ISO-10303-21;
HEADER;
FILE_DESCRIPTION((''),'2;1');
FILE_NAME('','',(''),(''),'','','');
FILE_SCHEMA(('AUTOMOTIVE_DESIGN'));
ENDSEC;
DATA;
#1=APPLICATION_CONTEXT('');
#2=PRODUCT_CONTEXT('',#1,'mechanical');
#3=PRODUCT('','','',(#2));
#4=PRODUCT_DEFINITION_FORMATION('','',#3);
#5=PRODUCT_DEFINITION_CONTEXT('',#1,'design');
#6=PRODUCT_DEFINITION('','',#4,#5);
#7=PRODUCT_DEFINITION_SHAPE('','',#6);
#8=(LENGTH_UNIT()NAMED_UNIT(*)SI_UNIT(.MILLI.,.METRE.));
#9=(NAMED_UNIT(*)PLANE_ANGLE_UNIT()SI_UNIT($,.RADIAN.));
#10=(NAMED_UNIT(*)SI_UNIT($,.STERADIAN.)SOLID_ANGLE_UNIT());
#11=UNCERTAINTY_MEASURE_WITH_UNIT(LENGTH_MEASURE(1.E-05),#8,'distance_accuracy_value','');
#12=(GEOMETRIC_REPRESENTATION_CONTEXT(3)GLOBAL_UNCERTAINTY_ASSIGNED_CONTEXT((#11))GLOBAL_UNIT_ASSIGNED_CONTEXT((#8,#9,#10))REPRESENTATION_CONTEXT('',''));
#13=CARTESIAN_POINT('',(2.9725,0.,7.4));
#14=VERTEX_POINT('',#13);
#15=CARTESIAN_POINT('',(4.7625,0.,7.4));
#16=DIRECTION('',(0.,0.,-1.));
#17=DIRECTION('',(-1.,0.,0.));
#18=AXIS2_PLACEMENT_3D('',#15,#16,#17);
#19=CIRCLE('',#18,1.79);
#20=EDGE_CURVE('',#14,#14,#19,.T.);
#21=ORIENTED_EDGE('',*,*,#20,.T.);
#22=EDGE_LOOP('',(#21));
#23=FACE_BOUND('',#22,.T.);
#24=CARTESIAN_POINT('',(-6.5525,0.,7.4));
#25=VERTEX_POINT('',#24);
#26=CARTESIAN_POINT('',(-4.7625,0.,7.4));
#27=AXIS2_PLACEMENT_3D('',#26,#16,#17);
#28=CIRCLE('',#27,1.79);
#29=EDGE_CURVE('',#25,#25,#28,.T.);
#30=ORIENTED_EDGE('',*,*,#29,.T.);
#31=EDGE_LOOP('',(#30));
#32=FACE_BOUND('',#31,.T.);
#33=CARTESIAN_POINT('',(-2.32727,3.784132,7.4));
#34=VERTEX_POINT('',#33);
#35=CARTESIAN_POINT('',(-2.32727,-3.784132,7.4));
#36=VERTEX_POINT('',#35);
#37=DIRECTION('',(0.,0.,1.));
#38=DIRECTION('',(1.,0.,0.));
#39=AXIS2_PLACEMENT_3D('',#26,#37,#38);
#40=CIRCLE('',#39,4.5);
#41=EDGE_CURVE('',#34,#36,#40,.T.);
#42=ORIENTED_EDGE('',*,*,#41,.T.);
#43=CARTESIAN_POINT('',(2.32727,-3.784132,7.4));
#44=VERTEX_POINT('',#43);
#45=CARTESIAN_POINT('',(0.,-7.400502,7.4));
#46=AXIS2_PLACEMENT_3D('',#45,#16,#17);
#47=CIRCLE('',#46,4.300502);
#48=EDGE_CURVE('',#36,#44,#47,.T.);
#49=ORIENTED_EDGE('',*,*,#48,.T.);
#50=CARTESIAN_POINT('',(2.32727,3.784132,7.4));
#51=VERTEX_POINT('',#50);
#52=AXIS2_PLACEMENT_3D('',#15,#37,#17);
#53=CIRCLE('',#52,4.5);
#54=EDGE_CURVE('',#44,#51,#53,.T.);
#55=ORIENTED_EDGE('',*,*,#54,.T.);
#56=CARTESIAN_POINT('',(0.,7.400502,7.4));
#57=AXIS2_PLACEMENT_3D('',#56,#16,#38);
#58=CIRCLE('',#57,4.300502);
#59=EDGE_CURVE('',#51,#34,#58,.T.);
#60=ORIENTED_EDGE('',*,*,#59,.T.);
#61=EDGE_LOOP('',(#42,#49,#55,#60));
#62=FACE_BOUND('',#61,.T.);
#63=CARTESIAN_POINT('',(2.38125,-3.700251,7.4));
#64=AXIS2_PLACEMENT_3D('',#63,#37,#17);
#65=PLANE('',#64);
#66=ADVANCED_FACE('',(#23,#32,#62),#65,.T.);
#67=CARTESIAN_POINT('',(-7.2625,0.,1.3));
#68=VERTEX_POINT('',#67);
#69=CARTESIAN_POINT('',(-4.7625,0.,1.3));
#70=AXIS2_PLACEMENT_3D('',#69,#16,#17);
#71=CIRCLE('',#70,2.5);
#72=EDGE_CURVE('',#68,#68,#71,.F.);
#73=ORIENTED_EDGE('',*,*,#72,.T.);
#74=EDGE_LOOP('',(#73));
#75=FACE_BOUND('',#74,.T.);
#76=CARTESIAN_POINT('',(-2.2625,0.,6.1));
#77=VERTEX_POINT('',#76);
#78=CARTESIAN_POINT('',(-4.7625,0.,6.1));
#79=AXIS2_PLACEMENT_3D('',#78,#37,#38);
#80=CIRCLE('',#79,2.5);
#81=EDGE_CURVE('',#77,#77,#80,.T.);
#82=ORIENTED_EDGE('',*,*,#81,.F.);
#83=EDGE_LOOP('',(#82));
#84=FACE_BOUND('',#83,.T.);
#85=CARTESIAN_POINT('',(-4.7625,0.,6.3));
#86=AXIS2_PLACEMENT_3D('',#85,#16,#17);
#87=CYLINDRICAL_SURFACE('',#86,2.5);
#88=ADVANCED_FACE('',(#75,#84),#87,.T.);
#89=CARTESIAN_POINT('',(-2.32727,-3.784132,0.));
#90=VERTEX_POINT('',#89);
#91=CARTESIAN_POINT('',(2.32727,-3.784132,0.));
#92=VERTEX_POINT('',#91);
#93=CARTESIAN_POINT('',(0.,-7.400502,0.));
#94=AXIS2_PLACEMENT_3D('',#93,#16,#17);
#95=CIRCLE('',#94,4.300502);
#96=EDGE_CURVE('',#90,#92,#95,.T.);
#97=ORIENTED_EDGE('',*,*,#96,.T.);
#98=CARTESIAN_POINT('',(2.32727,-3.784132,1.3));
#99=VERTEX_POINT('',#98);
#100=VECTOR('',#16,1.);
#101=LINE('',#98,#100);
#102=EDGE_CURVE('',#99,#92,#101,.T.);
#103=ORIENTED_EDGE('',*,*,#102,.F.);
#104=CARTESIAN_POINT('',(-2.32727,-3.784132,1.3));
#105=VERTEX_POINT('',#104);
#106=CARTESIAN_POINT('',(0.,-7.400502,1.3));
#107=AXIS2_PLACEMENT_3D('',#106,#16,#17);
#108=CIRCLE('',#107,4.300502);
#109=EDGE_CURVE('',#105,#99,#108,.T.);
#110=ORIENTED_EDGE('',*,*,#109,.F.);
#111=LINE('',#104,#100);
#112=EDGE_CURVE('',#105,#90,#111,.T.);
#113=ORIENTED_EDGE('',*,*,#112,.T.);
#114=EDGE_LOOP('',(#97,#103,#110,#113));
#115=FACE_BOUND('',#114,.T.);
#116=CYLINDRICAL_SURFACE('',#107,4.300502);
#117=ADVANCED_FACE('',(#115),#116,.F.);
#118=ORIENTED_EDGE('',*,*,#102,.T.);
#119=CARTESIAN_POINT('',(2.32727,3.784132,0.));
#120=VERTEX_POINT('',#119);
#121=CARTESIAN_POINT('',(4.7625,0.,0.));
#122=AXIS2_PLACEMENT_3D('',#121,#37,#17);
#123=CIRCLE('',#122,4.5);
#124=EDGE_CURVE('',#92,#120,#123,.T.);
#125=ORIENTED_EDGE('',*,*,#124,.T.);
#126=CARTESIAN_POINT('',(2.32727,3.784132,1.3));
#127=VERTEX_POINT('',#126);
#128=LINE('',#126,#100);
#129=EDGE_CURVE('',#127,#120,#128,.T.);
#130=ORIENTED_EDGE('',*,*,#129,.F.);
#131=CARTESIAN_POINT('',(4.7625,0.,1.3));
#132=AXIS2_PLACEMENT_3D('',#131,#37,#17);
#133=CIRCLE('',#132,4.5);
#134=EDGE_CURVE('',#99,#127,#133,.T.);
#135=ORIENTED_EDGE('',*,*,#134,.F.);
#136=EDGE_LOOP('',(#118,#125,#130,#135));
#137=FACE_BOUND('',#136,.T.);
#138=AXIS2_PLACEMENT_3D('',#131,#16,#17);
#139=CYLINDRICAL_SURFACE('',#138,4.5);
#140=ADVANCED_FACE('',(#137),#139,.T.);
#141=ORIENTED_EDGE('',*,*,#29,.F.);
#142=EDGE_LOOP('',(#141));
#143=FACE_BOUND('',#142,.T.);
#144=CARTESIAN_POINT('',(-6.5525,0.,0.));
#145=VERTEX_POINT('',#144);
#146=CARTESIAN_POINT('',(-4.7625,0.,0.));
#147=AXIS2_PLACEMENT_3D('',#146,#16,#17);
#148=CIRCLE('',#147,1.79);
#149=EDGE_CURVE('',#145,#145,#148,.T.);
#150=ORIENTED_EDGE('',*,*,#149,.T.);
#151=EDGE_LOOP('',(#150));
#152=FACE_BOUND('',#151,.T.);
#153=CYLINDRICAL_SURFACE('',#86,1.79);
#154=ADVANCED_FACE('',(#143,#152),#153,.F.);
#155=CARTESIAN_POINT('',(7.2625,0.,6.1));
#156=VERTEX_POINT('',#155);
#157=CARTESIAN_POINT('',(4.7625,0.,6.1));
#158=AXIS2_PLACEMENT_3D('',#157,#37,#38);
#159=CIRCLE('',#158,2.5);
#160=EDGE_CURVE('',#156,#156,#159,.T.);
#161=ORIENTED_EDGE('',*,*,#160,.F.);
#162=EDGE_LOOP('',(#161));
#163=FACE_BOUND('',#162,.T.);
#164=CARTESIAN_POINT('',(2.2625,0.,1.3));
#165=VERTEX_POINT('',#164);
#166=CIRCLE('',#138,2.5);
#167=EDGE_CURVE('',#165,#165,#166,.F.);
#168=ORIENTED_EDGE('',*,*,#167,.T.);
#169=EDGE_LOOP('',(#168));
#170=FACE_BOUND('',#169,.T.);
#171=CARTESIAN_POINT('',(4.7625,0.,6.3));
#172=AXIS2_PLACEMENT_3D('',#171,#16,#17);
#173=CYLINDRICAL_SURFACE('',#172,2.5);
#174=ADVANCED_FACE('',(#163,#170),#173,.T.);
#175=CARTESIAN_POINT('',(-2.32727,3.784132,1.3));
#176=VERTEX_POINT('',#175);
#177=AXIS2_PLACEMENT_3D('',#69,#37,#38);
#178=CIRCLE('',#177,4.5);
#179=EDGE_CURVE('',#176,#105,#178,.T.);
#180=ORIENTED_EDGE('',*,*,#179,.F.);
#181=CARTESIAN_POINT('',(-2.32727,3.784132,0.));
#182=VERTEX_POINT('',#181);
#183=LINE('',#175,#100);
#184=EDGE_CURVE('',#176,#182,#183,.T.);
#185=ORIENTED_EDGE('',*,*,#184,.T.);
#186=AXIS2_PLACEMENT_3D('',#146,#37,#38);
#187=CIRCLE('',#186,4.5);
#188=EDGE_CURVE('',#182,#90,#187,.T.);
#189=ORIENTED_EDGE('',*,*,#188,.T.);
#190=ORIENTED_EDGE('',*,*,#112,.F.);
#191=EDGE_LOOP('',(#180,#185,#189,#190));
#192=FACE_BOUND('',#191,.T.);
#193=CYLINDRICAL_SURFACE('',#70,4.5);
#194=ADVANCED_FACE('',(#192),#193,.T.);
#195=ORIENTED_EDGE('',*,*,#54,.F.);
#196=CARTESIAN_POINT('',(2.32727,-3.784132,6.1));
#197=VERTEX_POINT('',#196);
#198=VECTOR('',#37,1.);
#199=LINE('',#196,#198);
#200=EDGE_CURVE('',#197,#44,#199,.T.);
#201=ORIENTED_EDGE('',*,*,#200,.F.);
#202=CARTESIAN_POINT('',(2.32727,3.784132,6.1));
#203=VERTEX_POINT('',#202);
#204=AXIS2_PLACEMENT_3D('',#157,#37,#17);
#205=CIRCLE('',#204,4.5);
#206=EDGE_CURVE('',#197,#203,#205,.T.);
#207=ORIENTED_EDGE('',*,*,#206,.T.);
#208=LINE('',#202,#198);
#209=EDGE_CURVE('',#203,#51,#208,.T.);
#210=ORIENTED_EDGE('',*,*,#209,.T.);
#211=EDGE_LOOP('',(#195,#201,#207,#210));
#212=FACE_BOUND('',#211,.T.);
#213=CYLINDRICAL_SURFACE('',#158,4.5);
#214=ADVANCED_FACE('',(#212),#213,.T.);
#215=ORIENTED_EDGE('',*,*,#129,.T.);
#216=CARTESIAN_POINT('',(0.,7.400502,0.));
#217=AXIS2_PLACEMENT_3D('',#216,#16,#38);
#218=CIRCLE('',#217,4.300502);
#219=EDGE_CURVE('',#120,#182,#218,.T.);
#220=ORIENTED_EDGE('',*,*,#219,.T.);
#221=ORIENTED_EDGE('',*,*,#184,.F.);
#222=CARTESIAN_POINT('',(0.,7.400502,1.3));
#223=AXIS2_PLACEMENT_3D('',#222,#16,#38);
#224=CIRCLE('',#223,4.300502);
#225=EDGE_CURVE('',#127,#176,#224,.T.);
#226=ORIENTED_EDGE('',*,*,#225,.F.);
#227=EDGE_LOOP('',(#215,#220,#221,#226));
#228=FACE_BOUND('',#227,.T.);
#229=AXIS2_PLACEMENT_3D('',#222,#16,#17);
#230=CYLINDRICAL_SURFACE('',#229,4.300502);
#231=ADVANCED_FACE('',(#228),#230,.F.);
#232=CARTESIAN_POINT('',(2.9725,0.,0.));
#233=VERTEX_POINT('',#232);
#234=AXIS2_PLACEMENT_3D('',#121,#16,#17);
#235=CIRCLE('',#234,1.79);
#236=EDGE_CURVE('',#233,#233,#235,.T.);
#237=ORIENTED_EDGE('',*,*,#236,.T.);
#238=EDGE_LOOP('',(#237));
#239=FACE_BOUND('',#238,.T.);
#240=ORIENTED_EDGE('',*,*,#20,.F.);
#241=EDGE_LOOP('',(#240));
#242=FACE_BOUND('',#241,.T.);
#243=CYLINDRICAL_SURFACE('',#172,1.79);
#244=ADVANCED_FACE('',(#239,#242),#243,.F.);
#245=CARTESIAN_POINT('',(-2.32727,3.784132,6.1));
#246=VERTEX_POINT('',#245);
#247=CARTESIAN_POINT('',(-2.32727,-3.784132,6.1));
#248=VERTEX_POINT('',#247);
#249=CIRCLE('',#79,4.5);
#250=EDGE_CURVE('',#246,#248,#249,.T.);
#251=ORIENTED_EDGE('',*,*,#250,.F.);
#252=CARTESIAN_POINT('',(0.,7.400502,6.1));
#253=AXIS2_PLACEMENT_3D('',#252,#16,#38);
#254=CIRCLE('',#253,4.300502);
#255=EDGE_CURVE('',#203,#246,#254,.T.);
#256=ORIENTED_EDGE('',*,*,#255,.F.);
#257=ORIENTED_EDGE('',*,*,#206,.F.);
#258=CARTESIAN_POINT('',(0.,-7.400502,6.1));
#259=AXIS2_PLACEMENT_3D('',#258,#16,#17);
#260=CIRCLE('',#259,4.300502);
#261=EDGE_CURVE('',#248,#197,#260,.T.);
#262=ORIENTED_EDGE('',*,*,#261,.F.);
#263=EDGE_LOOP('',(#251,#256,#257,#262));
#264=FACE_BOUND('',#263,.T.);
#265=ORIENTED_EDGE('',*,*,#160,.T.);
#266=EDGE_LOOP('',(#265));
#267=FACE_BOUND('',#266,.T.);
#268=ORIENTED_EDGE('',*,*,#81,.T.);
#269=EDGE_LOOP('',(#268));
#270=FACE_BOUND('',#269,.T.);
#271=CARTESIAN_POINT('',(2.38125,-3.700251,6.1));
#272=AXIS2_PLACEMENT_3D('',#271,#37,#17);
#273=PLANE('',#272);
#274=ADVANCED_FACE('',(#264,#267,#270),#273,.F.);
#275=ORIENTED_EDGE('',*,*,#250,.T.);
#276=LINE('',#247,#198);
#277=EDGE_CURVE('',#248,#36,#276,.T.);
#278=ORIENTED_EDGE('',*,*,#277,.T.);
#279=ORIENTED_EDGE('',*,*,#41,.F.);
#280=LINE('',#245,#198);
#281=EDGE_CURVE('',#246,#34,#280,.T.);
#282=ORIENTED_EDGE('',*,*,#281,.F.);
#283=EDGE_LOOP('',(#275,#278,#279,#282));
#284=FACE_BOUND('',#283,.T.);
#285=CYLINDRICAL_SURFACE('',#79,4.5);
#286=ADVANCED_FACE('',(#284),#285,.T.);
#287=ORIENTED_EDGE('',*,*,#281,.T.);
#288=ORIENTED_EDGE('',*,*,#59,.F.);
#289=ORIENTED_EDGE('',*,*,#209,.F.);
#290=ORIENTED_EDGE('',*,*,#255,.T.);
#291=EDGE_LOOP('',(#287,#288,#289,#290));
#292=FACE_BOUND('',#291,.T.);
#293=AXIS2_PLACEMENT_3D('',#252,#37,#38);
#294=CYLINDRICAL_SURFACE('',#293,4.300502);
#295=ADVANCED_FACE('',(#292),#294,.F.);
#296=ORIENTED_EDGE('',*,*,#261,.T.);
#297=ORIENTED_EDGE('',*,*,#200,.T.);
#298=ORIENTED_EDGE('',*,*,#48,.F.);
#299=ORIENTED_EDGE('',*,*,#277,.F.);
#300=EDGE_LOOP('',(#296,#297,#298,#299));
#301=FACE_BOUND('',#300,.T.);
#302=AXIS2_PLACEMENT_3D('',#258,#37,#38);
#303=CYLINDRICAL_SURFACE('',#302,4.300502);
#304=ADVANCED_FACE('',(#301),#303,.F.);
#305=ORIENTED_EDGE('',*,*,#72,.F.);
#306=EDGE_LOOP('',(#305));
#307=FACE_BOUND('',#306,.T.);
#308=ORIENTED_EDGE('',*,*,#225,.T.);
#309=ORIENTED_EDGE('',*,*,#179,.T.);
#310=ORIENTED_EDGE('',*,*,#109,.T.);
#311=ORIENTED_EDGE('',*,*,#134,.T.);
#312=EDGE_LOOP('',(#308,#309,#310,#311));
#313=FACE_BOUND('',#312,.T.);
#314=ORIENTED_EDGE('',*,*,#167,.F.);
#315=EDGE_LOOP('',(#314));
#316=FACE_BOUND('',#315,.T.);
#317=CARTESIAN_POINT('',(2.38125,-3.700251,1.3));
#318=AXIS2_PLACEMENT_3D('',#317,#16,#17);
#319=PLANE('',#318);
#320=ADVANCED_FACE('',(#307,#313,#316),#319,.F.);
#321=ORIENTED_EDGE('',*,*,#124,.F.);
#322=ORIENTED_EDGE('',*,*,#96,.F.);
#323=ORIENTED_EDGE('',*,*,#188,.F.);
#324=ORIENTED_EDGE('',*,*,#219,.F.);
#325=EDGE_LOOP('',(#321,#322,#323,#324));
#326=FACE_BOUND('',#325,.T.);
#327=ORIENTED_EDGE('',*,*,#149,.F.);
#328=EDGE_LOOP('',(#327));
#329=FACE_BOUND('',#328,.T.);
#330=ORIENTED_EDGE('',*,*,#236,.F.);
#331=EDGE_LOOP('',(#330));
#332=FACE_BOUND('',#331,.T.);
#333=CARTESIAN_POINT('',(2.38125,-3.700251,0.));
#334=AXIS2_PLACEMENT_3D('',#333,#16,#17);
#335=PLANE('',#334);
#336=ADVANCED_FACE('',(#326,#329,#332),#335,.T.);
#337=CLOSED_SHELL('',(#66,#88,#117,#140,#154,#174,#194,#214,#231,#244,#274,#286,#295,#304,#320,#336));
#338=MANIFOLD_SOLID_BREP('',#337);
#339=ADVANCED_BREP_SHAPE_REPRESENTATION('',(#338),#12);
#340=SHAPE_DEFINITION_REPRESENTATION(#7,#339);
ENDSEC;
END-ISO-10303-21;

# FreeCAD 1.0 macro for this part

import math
import FreeCAD as App
import Part
import Sketcher
from FreeCAD import Vector
Q = App.Units.Quantity

doc = App.newDocument("Part")
body = doc.addObject("PartDesign::Body", "Body")

sketch1 = body.newObject("Sketcher::SketchObject", "Sketch")
sketch1.AttachmentSupport = (doc.getObject("XY_Plane"), [""])
sketch1.MapMode = "FlatFace"
sketch1.addGeometry(Part.ArcOfCircle(Part.Circle(Vector(-4.7625, 0, 0), Vector(0, 0, 1), 4.5), math.radians(57.237203), math.radians(302.762797)), False)
sketch1.addGeometry(Part.ArcOfCircle(Part.Circle(Vector(0, -7.400502, 0), Vector(0, 0, 1), 4.300502), math.radians(57.237203), math.radians(122.762797)), False)
sketch1.addGeometry(Part.ArcOfCircle(Part.Circle(Vector(4.7625, 0, 0), Vector(0, 0, 1), 4.5), math.radians(-122.762797), math.radians(122.762797)), False)
sketch1.addGeometry(Part.ArcOfCircle(Part.Circle(Vector(0, 7.400502, 0), Vector(0, 0, 1), 4.300502), math.radians(-122.762797), math.radians(-57.237203)), False)
sketch1.addConstraint(Sketcher.Constraint("Tangent", 0, 2, 1, 2))
sketch1.addConstraint(Sketcher.Constraint("Tangent", 1, 1, 2, 1))
sketch1.addConstraint(Sketcher.Constraint("Tangent", 2, 2, 3, 2))
sketch1.addConstraint(Sketcher.Constraint("Tangent", 3, 1, 0, 1))
sketch1.addConstraint(Sketcher.Constraint("Equal", 0, 2))
sketch1.addConstraint(Sketcher.Constraint("Equal", 1, 3))
sketch1.addConstraint(Sketcher.Constraint("Symmetric", 0, 3, 2, 3, -1, 1))
sketch1.addConstraint(Sketcher.Constraint("PointOnObject", 0, 3, -1))
sketch1.addConstraint(Sketcher.Constraint("Radius", 0, Q("4.5 mm")))
sketch1.addConstraint(Sketcher.Constraint("Radius", 1, Q("4.300502 mm")))
sketch1.addConstraint(Sketcher.Constraint("DistanceX", 0, 3, 2, 3, Q("9.525 mm")))
pad1 = body.newObject("PartDesign::Pad", "Pad")
pad1.Profile = sketch1
pad1.Length = 1.3

sketch2 = body.newObject("Sketcher::SketchObject", "Sketch001")
sketch2.AttachmentSupport = (doc.getObject("XY_Plane"), [""])
sketch2.MapMode = "FlatFace"
sketch2.AttachmentOffset = App.Placement(Vector(0, 0, 1.3), App.Rotation())
sketch2.addGeometry(Part.Circle(Vector(-4.7625, 0, 0), Vector(0, 0, 1), 2.5), False)
sketch2.addGeometry(Part.Circle(Vector(-4.7625, 0, 0), Vector(0, 0, 1), 1.79), False)
sketch2.addGeometry(Part.Circle(Vector(4.7625, 0, 0), Vector(0, 0, 1), 2.5), False)
sketch2.addGeometry(Part.Circle(Vector(4.7625, 0, 0), Vector(0, 0, 1), 1.79), False)
sketch2.addConstraint(Sketcher.Constraint("Coincident", 1, 3, 0, 3))
sketch2.addConstraint(Sketcher.Constraint("Coincident", 3, 3, 2, 3))
sketch2.addConstraint(Sketcher.Constraint("Equal", 0, 2))
sketch2.addConstraint(Sketcher.Constraint("Equal", 1, 3))
sketch2.addConstraint(Sketcher.Constraint("Symmetric", 0, 3, 2, 3, -1, 1))
sketch2.addConstraint(Sketcher.Constraint("PointOnObject", 0, 3, -1))
sketch2.addConstraint(Sketcher.Constraint("Diameter", 0, Q("5 mm")))
sketch2.addConstraint(Sketcher.Constraint("Diameter", 1, Q("3.58 mm")))
sketch2.addConstraint(Sketcher.Constraint("DistanceX", 0, 3, 2, 3, Q("9.525 mm")))
pad2 = body.newObject("PartDesign::Pad", "Pad001")
pad2.Profile = sketch2
pad2.Length = 5
doc.recompute()

datumplane = body.newObject("PartDesign::Plane", "DatumPlane")
datumplane.AttachmentSupport = (doc.getObject("XY_Plane"), [""])
datumplane.MapMode = "FlatFace"
datumplane.AttachmentOffset = App.Placement(Vector(0, 0, 3.7), App.Rotation())
mirrored = body.newObject("PartDesign::Mirrored", "Mirrored")
mirrored.Originals = [pad1]
mirrored.MirrorPlane = (datumplane, [""])
body.Tip = mirrored

sketch3 = body.newObject("Sketcher::SketchObject", "Sketch002")
sketch3.AttachmentSupport = (doc.getObject("XY_Plane"), [""])
sketch3.MapMode = "FlatFace"
sketch3.AttachmentOffset = App.Placement(Vector(0, 0, 3.7), App.Rotation())
sketch3.addGeometry(Part.Circle(Vector(4.7625, 0, 0), Vector(0, 0, 1), 1.79), False)
sketch3.addGeometry(Part.Circle(Vector(-4.7625, 0, 0), Vector(0, 0, 1), 1.79), False)
sketch3.addConstraint(Sketcher.Constraint("Equal", 0, 1))
sketch3.addConstraint(Sketcher.Constraint("Symmetric", 0, 3, 1, 3, -1, 1))
sketch3.addConstraint(Sketcher.Constraint("PointOnObject", 0, 3, -1))
sketch3.addConstraint(Sketcher.Constraint("Diameter", 0, Q("3.58 mm")))
sketch3.addConstraint(Sketcher.Constraint("DistanceX", 1, 3, 0, 3, Q("9.525 mm")))
pocket1 = body.newObject("PartDesign::Pocket", "Pocket")
pocket1.Profile = sketch3
pocket1.Type = "ThroughAll"
pocket1.Midplane = True

doc.recompute()
